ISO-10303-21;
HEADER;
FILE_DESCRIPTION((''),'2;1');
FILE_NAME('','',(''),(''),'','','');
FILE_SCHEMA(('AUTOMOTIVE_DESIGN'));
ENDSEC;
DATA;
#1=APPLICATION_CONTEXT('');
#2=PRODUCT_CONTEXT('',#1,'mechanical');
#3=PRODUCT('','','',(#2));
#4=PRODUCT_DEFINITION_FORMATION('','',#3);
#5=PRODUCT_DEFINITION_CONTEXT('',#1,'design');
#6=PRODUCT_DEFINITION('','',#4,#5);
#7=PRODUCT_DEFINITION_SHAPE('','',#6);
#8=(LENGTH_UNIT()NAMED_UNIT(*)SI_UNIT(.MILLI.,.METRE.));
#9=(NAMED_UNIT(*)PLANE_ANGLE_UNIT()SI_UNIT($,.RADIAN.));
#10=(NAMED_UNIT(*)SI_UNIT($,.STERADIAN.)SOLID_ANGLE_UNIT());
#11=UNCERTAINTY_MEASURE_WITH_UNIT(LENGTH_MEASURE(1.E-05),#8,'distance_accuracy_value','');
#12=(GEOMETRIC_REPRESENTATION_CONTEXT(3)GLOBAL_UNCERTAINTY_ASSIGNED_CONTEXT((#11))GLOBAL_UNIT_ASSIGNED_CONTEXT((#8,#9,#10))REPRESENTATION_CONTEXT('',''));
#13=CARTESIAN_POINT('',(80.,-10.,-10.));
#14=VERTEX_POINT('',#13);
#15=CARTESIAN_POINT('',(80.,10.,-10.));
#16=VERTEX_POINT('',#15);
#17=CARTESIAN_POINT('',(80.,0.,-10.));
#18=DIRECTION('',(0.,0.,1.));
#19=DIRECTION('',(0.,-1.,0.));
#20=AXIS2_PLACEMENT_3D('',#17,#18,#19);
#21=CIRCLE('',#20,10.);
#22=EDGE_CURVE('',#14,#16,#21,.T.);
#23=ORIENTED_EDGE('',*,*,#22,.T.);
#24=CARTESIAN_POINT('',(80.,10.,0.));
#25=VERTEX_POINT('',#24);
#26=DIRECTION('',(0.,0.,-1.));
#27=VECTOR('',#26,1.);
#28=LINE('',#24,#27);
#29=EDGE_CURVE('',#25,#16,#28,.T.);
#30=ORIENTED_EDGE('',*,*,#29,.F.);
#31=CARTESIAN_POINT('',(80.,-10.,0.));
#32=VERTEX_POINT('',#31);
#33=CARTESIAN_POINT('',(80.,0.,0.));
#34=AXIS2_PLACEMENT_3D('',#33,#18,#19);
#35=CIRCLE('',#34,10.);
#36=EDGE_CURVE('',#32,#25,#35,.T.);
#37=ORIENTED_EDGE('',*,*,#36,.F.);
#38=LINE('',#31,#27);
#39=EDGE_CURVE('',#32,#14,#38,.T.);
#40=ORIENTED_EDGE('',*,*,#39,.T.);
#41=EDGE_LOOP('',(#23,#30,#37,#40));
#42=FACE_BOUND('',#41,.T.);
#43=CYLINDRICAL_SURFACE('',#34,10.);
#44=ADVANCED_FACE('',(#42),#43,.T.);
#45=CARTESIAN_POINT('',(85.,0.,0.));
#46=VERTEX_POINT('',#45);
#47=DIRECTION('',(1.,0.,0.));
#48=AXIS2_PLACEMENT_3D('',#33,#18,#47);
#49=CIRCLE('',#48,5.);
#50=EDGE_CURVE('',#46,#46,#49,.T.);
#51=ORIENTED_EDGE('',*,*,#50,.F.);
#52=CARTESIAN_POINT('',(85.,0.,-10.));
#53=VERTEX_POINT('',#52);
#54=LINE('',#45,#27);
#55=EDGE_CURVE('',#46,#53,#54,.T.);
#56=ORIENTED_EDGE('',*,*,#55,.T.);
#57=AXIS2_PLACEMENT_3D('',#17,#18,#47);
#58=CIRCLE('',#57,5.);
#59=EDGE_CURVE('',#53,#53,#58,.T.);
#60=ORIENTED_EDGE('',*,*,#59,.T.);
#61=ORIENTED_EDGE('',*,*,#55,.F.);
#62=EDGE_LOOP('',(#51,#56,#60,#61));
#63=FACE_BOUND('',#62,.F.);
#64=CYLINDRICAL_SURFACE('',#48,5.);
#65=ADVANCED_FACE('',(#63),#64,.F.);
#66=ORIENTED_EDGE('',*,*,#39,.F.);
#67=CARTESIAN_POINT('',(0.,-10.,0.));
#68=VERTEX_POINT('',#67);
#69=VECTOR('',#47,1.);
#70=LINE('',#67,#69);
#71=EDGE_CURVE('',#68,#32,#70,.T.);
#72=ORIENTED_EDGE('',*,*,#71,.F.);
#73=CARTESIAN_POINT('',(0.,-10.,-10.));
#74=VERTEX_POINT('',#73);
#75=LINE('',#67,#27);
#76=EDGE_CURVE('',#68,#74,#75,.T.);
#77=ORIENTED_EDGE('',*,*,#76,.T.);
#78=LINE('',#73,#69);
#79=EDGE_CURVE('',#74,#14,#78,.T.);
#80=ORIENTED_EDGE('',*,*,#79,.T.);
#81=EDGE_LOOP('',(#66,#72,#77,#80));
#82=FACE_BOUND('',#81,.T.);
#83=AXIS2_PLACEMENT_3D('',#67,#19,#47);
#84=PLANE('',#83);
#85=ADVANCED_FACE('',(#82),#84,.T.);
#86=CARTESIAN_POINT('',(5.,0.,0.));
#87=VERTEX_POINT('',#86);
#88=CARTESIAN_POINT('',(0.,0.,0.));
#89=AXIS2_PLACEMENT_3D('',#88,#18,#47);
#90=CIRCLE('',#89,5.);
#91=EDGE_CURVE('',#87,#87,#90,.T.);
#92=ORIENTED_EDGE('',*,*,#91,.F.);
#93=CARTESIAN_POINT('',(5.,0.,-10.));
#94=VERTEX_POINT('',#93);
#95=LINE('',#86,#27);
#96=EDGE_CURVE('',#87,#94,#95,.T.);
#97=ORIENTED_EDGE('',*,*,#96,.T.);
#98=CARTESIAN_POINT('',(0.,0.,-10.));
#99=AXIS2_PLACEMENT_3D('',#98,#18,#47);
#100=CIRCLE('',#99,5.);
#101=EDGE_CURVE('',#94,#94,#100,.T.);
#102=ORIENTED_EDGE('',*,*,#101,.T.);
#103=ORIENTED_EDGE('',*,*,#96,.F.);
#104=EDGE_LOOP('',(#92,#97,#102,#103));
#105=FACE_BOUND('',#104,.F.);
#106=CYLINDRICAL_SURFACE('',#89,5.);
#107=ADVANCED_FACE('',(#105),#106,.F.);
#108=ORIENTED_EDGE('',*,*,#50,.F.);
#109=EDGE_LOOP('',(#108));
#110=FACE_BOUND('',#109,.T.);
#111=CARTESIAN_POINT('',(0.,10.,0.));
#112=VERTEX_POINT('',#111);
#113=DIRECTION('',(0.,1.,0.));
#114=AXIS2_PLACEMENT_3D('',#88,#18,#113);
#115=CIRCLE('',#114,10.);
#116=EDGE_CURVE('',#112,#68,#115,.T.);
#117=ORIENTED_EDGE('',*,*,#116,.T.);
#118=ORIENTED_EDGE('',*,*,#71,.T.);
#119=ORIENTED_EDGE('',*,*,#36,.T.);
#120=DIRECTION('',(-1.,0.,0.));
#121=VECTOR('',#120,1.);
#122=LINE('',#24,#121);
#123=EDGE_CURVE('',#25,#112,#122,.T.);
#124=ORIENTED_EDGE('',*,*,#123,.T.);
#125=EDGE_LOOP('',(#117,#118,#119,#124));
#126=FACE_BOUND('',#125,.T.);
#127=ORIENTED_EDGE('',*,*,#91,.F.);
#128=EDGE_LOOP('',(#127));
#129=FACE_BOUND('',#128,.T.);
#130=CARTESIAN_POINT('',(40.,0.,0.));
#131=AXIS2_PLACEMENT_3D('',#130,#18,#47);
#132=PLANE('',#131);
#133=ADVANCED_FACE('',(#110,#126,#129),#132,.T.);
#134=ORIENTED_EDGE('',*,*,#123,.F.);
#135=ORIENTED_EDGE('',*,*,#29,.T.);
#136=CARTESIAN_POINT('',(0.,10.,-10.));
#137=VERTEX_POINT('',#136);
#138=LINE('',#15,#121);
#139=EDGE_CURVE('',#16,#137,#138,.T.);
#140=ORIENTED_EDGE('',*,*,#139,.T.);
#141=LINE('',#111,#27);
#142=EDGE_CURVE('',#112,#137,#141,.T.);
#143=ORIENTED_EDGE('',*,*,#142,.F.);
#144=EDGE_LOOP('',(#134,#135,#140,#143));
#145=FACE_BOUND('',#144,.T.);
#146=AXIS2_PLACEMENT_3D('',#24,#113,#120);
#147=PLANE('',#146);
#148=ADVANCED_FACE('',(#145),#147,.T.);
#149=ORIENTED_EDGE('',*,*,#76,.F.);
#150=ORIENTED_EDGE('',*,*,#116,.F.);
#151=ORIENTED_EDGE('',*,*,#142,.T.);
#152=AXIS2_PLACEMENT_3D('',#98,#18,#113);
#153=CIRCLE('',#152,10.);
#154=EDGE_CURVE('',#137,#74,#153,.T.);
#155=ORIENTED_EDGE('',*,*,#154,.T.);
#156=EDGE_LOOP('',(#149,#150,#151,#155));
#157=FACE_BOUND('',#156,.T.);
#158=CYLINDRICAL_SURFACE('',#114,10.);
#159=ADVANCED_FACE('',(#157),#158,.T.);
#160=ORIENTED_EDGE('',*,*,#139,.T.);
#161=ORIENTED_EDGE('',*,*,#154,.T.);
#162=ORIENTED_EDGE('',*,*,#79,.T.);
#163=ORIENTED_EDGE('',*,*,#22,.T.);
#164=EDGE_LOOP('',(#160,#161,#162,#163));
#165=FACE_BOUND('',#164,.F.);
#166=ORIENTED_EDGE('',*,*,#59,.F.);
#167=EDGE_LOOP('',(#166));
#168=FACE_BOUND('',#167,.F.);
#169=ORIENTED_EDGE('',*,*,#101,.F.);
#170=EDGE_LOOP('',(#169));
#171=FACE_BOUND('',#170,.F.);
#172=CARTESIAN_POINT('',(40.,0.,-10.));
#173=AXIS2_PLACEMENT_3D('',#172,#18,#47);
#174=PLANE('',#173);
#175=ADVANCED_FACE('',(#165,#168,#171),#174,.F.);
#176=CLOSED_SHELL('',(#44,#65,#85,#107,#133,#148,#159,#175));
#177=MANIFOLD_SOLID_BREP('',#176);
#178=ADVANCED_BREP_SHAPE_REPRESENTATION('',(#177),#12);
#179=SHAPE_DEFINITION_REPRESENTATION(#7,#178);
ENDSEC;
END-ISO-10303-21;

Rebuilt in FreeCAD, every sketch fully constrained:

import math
import FreeCAD as App
import Part
import Sketcher

doc = App.newDocument("Part")
body = doc.addObject("PartDesign::Body", "Body")

# Sketch on XY plane
sketch1 = body.newObject("Sketcher::SketchObject", "Sketch")
sketch1.AttachmentSupport = (doc.getObject("XY_Plane"), [""])
sketch1.MapMode = "FlatFace"
sketch1.addGeometry([
    Part.LineSegment(App.Vector(80, 10, 0), App.Vector(0, 10, 0)),
    Part.ArcOfCircle(Part.Circle(App.Vector(0, 0, 0), App.Vector(0, 0, 1), 10), math.radians(90), math.radians(270)),
    Part.LineSegment(App.Vector(0, -10, 0), App.Vector(80, -10, 0)),
    Part.ArcOfCircle(Part.Circle(App.Vector(80, 0, 0), App.Vector(0, 0, 1), 10), math.radians(-90), math.radians(90)),
], False)
sketch1.addConstraint([
    Sketcher.Constraint("Tangent", 0, 2, 1, 1),
    Sketcher.Constraint("Tangent", 1, 2, 2, 1),
    Sketcher.Constraint("Tangent", 2, 2, 3, 1),
    Sketcher.Constraint("Tangent", 3, 2, 0, 1),
    Sketcher.Constraint("Horizontal", 0),
    Sketcher.Constraint("Horizontal", 2),
    Sketcher.Constraint("Coincident", 1, 3, -1, 1),
    Sketcher.Constraint("Radius", 1, 10.0),
    Sketcher.Constraint("DistanceX", 0, 2, 0, 1, 80.0),
])
pad1 = body.newObject("PartDesign::Pad", "Pad")
pad1.Profile = sketch1
pad1.Length = 10
pad1.Reversed = True

# Sketch on XY plane
sketch2 = body.newObject("Sketcher::SketchObject", "Sketch001")
sketch2.AttachmentSupport = (doc.getObject("XY_Plane"), [""])
sketch2.MapMode = "FlatFace"
sketch2.addGeometry([
    Part.Circle(App.Vector(0, 0, 0), App.Vector(0, 0, 1), 5),
    Part.Circle(App.Vector(80, 0, 0), App.Vector(0, 0, 1), 5),
], False)
sketch2.addConstraint([
    Sketcher.Constraint("Coincident", 0, 3, -1, 1),
    Sketcher.Constraint("Equal", 0, 1),
    Sketcher.Constraint("PointOnObject", 1, 3, -1),
    Sketcher.Constraint("Diameter", 0, 10.0),
    Sketcher.Constraint("DistanceX", -1, 1, 1, 3, 80.0),
])
pocket1 = body.newObject("PartDesign::Pocket", "Pocket")
pocket1.Profile = sketch2
pocket1.Type = "ThroughAll"

doc.recompute()
